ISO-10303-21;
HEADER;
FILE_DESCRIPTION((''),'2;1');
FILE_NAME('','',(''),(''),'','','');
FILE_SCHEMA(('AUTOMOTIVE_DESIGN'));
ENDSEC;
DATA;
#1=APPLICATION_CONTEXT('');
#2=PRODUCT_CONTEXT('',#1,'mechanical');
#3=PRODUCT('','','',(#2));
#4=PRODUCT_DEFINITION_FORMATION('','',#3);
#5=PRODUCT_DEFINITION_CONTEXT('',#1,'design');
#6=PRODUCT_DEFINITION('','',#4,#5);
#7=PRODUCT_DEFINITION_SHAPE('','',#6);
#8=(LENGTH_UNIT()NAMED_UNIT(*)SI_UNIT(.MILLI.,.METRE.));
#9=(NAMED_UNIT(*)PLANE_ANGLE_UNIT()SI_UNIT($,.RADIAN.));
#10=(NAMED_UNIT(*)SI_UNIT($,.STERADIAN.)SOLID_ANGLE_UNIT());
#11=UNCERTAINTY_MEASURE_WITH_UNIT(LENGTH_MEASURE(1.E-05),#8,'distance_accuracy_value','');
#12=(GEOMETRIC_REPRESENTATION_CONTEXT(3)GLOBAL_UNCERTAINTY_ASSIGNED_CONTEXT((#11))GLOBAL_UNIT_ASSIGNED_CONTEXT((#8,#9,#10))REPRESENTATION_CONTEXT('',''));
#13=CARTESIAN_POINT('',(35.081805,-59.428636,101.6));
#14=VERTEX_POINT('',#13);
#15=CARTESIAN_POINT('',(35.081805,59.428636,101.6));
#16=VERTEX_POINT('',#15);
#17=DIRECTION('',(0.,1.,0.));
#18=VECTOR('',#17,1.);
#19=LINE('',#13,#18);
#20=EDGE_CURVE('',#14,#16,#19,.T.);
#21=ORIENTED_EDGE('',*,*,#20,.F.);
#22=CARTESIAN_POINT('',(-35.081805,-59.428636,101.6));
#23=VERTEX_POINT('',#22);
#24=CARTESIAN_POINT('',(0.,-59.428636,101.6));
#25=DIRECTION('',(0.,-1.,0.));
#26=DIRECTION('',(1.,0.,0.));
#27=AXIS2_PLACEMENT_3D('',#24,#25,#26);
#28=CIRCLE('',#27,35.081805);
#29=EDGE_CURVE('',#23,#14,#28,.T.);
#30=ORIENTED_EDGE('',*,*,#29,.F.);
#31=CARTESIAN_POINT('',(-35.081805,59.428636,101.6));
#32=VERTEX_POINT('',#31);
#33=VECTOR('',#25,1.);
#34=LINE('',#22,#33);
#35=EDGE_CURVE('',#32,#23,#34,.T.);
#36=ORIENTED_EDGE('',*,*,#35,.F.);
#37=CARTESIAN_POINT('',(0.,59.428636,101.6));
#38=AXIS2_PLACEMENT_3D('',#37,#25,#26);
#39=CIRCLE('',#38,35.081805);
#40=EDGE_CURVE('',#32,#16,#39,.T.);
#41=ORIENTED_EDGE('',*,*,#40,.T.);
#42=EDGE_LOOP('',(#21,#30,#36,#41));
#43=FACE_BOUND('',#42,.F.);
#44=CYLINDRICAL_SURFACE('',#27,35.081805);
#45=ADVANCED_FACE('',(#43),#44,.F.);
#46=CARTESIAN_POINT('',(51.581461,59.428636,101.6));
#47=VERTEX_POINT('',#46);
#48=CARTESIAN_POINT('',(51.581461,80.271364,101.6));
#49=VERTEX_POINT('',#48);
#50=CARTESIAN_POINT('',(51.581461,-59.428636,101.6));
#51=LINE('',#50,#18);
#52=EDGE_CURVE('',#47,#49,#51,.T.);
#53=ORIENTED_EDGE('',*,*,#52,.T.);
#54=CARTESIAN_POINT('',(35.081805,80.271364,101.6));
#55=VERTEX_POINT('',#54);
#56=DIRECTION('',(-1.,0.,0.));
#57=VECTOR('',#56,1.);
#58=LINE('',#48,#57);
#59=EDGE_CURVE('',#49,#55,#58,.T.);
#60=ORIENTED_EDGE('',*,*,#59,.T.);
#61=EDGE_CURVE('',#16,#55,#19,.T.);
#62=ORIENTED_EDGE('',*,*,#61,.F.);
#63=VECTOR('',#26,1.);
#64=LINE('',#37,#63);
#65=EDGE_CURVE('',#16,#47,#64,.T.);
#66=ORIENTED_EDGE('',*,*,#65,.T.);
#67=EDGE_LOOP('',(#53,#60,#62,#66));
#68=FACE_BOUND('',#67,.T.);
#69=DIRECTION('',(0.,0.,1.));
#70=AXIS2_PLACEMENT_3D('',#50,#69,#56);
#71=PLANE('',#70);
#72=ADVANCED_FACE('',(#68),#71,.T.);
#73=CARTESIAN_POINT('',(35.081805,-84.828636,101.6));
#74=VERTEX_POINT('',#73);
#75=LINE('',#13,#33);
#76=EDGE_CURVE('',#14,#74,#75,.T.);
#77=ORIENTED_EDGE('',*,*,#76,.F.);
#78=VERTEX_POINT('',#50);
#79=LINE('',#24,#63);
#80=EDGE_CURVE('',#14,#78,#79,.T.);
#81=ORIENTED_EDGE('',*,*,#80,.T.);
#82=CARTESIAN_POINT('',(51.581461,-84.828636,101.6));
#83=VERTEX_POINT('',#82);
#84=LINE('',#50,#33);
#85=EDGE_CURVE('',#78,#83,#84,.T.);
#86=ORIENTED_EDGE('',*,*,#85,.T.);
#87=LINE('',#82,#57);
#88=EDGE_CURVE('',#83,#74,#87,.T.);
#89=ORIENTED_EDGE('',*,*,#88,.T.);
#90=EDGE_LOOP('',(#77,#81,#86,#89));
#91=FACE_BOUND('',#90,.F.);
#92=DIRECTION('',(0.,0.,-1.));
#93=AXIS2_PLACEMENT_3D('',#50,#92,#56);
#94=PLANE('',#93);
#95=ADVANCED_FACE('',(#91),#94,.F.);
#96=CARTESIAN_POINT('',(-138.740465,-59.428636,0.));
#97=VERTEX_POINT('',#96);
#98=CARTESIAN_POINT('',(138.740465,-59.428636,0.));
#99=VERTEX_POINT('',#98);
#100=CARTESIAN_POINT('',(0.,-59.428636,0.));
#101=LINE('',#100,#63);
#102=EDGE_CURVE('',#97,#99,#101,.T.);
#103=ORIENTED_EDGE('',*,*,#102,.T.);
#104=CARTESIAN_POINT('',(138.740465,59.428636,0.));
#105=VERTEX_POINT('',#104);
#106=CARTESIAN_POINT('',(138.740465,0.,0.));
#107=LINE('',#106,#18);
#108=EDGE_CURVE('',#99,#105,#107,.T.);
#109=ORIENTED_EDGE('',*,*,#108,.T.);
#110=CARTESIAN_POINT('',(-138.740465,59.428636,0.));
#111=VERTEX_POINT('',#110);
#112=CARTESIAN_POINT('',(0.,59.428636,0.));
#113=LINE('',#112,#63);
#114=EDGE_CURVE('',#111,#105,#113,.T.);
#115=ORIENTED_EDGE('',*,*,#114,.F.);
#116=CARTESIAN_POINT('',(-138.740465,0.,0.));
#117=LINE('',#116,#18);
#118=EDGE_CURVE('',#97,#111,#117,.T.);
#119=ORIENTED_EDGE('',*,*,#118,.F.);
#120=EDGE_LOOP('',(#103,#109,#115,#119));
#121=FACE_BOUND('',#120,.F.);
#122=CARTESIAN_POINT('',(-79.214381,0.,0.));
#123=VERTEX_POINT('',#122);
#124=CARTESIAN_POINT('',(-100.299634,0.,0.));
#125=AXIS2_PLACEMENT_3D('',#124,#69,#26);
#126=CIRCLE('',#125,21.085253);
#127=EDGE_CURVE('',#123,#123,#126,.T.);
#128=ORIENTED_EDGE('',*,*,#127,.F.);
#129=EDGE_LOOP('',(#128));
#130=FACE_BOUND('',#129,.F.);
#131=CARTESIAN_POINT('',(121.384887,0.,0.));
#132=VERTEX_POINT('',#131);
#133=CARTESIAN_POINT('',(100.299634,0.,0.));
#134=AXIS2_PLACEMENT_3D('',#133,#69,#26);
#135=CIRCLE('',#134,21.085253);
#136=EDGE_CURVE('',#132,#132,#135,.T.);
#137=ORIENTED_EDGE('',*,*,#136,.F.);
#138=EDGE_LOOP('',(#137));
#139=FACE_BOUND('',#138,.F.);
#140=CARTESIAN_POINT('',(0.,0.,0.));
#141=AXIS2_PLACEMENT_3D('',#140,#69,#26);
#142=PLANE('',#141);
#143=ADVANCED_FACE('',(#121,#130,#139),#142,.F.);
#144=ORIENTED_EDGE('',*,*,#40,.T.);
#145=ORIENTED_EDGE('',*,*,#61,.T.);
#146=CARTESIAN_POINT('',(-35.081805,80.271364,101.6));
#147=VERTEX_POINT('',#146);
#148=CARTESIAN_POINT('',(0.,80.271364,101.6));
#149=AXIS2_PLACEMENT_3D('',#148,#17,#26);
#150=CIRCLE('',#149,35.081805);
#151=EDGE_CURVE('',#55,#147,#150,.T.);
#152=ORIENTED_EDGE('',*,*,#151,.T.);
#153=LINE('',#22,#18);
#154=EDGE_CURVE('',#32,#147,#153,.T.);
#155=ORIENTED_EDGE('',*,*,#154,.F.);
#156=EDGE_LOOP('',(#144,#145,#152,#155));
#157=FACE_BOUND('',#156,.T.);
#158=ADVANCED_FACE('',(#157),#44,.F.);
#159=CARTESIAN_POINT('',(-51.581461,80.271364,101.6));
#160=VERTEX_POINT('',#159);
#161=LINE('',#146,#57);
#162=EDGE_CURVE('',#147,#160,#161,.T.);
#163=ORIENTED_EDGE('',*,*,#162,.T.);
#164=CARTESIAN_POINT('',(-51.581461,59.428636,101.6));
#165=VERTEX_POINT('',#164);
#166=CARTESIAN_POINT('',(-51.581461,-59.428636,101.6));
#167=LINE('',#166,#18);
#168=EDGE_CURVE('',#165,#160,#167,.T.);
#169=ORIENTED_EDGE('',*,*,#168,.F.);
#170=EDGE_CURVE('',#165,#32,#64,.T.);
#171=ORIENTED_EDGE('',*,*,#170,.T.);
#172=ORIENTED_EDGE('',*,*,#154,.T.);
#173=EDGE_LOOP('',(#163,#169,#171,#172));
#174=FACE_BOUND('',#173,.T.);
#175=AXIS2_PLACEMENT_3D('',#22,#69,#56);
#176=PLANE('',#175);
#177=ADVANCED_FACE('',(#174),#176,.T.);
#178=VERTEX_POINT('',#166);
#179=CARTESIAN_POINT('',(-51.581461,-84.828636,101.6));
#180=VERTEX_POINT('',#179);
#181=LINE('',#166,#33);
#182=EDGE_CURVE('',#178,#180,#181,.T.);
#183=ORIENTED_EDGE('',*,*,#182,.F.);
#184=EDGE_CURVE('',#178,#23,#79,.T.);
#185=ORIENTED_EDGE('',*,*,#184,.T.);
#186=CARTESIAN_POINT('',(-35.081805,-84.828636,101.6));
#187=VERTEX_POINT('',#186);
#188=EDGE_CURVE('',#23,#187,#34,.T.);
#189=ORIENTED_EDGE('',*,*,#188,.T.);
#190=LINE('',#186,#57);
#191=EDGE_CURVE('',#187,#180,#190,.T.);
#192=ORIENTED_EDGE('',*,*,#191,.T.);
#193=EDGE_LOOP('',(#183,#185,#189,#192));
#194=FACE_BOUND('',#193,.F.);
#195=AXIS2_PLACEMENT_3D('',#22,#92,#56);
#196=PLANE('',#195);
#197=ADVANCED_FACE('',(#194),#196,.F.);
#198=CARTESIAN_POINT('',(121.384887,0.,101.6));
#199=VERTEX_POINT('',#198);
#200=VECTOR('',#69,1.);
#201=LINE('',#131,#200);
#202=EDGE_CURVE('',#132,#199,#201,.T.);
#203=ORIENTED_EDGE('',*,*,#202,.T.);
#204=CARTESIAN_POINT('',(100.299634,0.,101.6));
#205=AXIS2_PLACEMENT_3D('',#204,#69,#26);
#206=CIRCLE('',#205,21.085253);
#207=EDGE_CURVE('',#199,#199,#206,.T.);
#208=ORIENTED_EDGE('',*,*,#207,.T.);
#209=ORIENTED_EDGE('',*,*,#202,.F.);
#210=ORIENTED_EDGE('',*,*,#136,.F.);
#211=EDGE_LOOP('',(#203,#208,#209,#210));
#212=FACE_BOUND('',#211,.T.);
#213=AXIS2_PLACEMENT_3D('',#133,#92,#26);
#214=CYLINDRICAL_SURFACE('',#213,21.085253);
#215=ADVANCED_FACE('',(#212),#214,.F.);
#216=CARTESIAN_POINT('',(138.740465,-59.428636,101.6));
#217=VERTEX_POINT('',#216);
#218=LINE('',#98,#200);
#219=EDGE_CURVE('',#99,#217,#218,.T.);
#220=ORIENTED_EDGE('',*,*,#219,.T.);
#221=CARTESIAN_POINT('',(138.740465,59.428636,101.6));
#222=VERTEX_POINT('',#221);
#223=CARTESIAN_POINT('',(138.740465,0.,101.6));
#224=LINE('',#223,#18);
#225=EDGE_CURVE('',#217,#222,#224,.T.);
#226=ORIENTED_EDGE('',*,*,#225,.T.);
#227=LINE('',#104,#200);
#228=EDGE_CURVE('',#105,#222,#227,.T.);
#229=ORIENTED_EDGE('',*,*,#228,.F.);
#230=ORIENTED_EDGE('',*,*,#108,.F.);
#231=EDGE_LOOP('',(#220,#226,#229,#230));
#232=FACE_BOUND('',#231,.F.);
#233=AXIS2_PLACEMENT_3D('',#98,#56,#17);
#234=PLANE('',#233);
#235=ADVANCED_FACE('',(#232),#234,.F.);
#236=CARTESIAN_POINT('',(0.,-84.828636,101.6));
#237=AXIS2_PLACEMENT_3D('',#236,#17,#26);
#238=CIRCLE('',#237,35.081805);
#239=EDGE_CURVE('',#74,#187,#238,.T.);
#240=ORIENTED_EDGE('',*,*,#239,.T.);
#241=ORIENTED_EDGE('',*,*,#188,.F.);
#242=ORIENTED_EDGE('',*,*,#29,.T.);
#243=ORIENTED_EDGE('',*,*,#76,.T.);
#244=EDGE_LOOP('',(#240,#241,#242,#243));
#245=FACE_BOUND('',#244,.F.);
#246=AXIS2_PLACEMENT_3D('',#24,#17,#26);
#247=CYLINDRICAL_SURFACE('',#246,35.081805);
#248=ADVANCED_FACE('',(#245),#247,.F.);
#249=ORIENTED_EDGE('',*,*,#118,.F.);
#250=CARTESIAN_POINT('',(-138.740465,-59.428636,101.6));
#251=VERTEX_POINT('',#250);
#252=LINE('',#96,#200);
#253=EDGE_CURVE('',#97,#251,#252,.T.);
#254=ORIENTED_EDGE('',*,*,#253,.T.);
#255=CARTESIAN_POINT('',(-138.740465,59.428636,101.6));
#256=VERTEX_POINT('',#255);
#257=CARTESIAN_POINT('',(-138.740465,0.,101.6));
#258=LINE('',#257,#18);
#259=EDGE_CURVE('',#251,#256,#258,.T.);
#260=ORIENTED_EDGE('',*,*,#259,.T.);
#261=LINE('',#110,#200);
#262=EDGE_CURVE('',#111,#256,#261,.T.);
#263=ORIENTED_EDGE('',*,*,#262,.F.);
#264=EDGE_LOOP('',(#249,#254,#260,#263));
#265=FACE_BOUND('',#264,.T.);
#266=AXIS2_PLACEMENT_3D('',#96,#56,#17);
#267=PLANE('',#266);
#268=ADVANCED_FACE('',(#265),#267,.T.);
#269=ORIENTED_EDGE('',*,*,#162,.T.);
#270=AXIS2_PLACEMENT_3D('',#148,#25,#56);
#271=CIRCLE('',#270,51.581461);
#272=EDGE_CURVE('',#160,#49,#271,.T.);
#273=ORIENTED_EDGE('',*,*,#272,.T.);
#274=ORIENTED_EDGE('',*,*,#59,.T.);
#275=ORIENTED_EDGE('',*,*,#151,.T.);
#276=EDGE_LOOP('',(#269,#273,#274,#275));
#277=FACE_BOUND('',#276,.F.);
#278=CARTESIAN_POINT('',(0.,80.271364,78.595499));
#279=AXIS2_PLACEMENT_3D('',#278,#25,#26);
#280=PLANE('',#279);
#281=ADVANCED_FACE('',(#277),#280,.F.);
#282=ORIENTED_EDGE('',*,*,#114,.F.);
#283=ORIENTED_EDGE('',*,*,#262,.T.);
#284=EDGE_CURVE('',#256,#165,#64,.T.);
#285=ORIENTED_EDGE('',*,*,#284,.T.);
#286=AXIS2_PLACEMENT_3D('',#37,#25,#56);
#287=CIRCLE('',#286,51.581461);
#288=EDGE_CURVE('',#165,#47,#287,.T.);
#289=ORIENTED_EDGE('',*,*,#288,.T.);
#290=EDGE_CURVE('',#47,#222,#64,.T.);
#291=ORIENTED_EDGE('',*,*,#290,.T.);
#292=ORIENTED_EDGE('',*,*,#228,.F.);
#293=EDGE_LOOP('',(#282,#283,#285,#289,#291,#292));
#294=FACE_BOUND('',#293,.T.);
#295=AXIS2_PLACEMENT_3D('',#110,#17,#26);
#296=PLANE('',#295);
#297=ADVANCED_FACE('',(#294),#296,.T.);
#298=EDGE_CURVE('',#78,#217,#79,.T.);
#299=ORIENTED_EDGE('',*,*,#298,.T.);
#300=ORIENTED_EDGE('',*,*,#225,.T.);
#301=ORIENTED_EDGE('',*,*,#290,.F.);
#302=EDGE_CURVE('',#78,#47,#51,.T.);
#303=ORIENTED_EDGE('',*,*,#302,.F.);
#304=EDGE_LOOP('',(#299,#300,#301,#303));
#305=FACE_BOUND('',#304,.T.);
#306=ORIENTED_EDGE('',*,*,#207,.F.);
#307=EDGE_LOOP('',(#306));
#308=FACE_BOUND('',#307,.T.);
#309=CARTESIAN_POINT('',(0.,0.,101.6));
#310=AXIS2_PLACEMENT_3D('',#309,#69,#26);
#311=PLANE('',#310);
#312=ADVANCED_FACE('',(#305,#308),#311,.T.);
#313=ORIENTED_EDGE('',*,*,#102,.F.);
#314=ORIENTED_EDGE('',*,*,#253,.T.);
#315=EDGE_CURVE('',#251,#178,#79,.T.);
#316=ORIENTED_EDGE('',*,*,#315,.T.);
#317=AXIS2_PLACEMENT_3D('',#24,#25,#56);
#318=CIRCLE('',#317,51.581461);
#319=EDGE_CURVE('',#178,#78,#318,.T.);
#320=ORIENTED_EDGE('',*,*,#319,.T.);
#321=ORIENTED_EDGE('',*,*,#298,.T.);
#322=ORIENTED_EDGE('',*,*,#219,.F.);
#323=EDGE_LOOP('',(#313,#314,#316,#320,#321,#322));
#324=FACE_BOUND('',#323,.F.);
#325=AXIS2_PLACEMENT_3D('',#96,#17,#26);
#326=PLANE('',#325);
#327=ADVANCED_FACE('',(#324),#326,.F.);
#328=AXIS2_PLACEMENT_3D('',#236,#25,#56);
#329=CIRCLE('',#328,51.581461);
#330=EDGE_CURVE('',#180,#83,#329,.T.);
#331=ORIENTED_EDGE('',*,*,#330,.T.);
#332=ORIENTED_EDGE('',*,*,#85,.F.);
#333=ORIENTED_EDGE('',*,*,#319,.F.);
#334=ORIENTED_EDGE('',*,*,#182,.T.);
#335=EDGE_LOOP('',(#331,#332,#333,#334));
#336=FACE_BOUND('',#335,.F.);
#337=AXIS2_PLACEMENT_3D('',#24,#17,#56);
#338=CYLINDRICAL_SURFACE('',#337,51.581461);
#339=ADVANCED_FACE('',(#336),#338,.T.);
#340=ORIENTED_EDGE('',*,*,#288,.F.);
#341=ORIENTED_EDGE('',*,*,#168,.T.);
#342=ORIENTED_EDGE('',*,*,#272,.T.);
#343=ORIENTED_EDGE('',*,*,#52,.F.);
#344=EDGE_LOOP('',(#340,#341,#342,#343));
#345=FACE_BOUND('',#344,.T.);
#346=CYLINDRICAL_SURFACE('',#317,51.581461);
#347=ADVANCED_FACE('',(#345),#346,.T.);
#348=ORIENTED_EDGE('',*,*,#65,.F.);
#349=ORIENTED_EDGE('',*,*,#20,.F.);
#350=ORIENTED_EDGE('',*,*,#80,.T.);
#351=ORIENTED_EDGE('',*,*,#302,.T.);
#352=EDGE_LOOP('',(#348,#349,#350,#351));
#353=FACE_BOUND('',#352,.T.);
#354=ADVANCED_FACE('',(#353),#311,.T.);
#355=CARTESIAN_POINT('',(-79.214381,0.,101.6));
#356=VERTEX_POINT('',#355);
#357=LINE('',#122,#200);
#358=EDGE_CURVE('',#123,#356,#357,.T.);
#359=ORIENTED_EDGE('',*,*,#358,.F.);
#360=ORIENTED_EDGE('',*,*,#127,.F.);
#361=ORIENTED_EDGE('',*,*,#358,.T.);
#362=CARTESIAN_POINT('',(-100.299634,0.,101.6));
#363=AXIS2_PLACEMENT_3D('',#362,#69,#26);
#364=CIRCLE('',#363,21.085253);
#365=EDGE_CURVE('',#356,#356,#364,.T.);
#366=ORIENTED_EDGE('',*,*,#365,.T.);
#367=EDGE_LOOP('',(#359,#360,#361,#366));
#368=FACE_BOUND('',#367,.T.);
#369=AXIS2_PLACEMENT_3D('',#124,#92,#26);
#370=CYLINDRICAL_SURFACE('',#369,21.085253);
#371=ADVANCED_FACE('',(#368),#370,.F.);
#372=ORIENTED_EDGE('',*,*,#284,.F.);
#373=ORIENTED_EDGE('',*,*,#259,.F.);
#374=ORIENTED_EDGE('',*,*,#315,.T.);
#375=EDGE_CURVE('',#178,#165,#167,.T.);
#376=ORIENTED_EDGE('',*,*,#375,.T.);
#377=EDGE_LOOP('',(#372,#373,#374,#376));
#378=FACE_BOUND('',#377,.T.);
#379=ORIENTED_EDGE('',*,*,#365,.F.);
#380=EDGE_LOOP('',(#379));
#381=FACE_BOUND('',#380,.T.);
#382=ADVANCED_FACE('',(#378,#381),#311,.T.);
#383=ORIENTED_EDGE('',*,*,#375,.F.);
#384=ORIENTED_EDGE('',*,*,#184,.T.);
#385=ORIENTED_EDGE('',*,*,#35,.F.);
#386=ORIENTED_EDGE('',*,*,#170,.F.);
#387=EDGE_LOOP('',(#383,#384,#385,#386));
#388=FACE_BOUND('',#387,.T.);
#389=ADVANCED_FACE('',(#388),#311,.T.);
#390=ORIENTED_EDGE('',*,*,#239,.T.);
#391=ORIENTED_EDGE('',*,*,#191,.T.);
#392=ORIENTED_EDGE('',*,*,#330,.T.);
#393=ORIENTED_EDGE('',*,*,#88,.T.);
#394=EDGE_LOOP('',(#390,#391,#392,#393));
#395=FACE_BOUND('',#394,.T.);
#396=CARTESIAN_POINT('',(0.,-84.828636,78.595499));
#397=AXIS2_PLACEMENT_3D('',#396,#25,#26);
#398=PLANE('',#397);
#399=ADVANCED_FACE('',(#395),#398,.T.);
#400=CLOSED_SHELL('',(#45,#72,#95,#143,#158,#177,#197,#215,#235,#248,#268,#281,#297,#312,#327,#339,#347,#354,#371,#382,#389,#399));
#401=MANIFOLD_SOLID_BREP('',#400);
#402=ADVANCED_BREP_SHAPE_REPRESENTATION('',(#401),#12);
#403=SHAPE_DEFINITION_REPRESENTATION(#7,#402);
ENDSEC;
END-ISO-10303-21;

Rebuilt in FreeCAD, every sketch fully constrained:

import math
import FreeCAD as App
import Part
import Sketcher

V = App.Vector
Q = App.Units.Quantity

doc = App.newDocument("Part")
params = doc.addObject("Spreadsheet::Sheet", "Params")
for row, (alias, value) in enumerate([
    ("pad1_length", "4 in"),
    ("pad2_length", "1 in"),
    ("pad2_length2", "5.5 in"),
], start=1):
    params.set(f"A{row}", alias)
    params.set(f"B{row}", "=" + value)
    params.setAlias(f"B{row}", alias)

body = doc.addObject("PartDesign::Body", "Body")

# Sketch on XY plane
sketch1 = body.newObject("Sketcher::SketchObject", "Sketch")
sketch1.AttachmentSupport = (doc.getObject("XY_Plane"), [""])
sketch1.MapMode = "FlatFace"
sketch1.addGeometry(Part.LineSegment(V(-138.740465, 59.428636, 0), V(-138.740465, -59.428636, 0)), False)
sketch1.addGeometry(Part.LineSegment(V(-138.740465, -59.428636, 0), V(138.740465, -59.428636, 0)), False)
sketch1.addGeometry(Part.LineSegment(V(138.740465, -59.428636, 0), V(138.740465, 59.428636, 0)), False)
sketch1.addGeometry(Part.LineSegment(V(138.740465, 59.428636, 0), V(-138.740465, 59.428636, 0)), False)
sketch1.addGeometry(Part.Circle(V(-100.299634, 0, 0), V(0, 0, 1), 21.085253), False)
sketch1.addGeometry(Part.Circle(V(100.299634, 0, 0), V(0, 0, 1), 21.085253), False)
sketch1.addConstraint(Sketcher.Constraint("Coincident", 0, 2, 1, 1))
sketch1.addConstraint(Sketcher.Constraint("Coincident", 1, 2, 2, 1))
sketch1.addConstraint(Sketcher.Constraint("Coincident", 2, 2, 3, 1))
sketch1.addConstraint(Sketcher.Constraint("Coincident", 3, 2, 0, 1))
sketch1.addConstraint(Sketcher.Constraint("Vertical", 0))
sketch1.addConstraint(Sketcher.Constraint("Horizontal", 1))
sketch1.addConstraint(Sketcher.Constraint("Vertical", 2))
sketch1.addConstraint(Sketcher.Constraint("Horizontal", 3))
sketch1.addConstraint(Sketcher.Constraint("Equal", 4, 5))
sketch1.addConstraint(Sketcher.Constraint("Symmetric", 4, 3, 5, 3, -1, 1))
sketch1.addConstraint(Sketcher.Constraint("Symmetric", 0, 2, 2, 2, -1, 1))
sketch1.addConstraint(Sketcher.Constraint("PointOnObject", 4, 3, -1))
sketch1.addConstraint(Sketcher.Constraint("Diameter", 4, 42.170506))
sketch1.addConstraint(Sketcher.Constraint("DistanceX", 1, 1, 1, 2, 277.48093))
sketch1.addConstraint(Sketcher.Constraint("DistanceY", 0, 2, 0, 1, 118.857272))
sketch1.addConstraint(Sketcher.Constraint("DistanceX", 0, 2, 5, 3, 239.040099))
pad1 = body.newObject("PartDesign::Pad", "Pad")
pad1.Profile = sketch1
pad1.setExpression("Length", "Params.pad1_length")

# Sketch on XZ plane
sketch2 = body.newObject("Sketcher::SketchObject", "Sketch001")
sketch2.AttachmentSupport = (doc.getObject("XZ_Plane"), [""])
sketch2.MapMode = "FlatFace"
sketch2.AttachmentOffset = App.Placement(V(0, 0, 59.428636), App.Rotation())
sketch2.addGeometry(Part.Circle(V(0, 101.6, 0), V(0, 0, 1), 35.081805), False)
sketch2.addConstraint(Sketcher.Constraint("PointOnObject", 0, 3, -2))
sketch2.addConstraint(Sketcher.Constraint("DistanceY", -1, 1, 0, 3, Q("4 in")))
sketch2.addConstraint(Sketcher.Constraint("Diameter", 0, 70.16361))
pocket1 = body.newObject("PartDesign::Pocket", "Pocket")
pocket1.Profile = sketch2
pocket1.Type = "ThroughAll"

# Sketch on XZ plane
sketch3 = body.newObject("Sketcher::SketchObject", "Sketch002")
sketch3.AttachmentSupport = (doc.getObject("XZ_Plane"), [""])
sketch3.MapMode = "FlatFace"
sketch3.AttachmentOffset = App.Placement(V(0, 0, 59.428636), App.Rotation())
sketch3.addGeometry(Part.ArcOfCircle(Part.Circle(V(0, 101.6, 0), V(0, 0, 1), 35.081805), math.radians(180), math.radians(360)), False)
sketch3.addGeometry(Part.LineSegment(V(-35.081805, 101.6, 0), V(-51.581461, 101.6, 0)), False)
sketch3.addGeometry(Part.ArcOfCircle(Part.Circle(V(0, 101.6, 0), V(0, 0, 1), 51.581461), math.radians(180), math.radians(360)), False)
sketch3.addGeometry(Part.LineSegment(V(51.581461, 101.6, 0), V(35.081805, 101.6, 0)), False)
sketch3.addConstraint(Sketcher.Constraint("Coincident", 0, 1, 1, 1))
sketch3.addConstraint(Sketcher.Constraint("Coincident", 1, 2, 2, 1))
sketch3.addConstraint(Sketcher.Constraint("Coincident", 2, 2, 3, 1))
sketch3.addConstraint(Sketcher.Constraint("Coincident", 3, 2, 0, 2))
sketch3.addConstraint(Sketcher.Constraint("Horizontal", 1))
sketch3.addConstraint(Sketcher.Constraint("Horizontal", 3))
sketch3.addConstraint(Sketcher.Constraint("Coincident", 2, 3, 0, 3))
sketch3.addConstraint(Sketcher.Constraint("Symmetric", 1, 2, 2, 2, -2))
sketch3.addConstraint(Sketcher.Constraint("Horizontal", 2, 3, 0, 1))
sketch3.addConstraint(Sketcher.Constraint("DistanceY", -1, 1, 0, 3, Q("4 in")))
sketch3.addConstraint(Sketcher.Constraint("Radius", 2, 51.581461))
sketch3.addConstraint(Sketcher.Constraint("Radius", 0, 35.081805))
pad2 = body.newObject("PartDesign::Pad", "Pad001")
pad2.Profile = sketch3
pad2.Type = "TwoLengths"
pad2.setExpression("Length", "Params.pad2_length")
pad2.setExpression("Length2", "Params.pad2_length2")

doc.recompute()
